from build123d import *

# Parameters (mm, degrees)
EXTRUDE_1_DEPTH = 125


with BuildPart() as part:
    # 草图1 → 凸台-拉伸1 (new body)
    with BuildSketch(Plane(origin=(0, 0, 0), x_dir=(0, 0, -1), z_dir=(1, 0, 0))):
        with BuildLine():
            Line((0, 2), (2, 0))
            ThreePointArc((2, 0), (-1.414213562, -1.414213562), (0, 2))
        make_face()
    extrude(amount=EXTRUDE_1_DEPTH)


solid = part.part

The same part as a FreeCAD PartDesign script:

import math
import FreeCAD as App
import Part
import Sketcher

V = App.Vector
Q = App.Units.Quantity

doc = App.newDocument("Part")
params = doc.addObject("Spreadsheet::Sheet", "Params")
for row, (alias, value) in enumerate([
    ("sketch1_radius", "2 mm"),
    ("pad1_length", "125 mm"),
], start=1):
    params.set(f"A{row}", alias)
    params.set(f"B{row}", "=" + value)
    params.setAlias(f"B{row}", alias)

body = doc.addObject("PartDesign::Body", "Body")

# Sketch on YZ plane
sketch1 = body.newObject("Sketcher::SketchObject", "Sketch")
sketch1.AttachmentSupport = (doc.getObject("YZ_Plane"), [""])
sketch1.MapMode = "FlatFace"
sketch1.addGeometry([
    Part.LineSegment(V(0, -2, 0), V(2, 0, 0)),
    Part.ArcOfCircle(Part.Circle(V(0, 0, 0), V(0, 0, 1), 2), math.radians(0), math.radians(270)),
], False)
sketch1.addConstraint([
    Sketcher.Constraint("Coincident", 0, 1, 1, 2),
    Sketcher.Constraint("Coincident", 1, 1, 0, 2),
    Sketcher.Constraint("Coincident", 1, 3, -1, 1),
    Sketcher.Constraint("PointOnObject", 0, 1, -2),
    Sketcher.Constraint("PointOnObject", 1, 1, -1),
    Sketcher.Constraint("Radius", 1, Q("2 mm")),
])
sketch1.setExpression("Constraints[5]", "Params.sketch1_radius")
pad1 = body.newObject("PartDesign::Pad", "Pad")
pad1.Profile = sketch1
pad1.setExpression("Length", "Params.pad1_length")

doc.recompute()
